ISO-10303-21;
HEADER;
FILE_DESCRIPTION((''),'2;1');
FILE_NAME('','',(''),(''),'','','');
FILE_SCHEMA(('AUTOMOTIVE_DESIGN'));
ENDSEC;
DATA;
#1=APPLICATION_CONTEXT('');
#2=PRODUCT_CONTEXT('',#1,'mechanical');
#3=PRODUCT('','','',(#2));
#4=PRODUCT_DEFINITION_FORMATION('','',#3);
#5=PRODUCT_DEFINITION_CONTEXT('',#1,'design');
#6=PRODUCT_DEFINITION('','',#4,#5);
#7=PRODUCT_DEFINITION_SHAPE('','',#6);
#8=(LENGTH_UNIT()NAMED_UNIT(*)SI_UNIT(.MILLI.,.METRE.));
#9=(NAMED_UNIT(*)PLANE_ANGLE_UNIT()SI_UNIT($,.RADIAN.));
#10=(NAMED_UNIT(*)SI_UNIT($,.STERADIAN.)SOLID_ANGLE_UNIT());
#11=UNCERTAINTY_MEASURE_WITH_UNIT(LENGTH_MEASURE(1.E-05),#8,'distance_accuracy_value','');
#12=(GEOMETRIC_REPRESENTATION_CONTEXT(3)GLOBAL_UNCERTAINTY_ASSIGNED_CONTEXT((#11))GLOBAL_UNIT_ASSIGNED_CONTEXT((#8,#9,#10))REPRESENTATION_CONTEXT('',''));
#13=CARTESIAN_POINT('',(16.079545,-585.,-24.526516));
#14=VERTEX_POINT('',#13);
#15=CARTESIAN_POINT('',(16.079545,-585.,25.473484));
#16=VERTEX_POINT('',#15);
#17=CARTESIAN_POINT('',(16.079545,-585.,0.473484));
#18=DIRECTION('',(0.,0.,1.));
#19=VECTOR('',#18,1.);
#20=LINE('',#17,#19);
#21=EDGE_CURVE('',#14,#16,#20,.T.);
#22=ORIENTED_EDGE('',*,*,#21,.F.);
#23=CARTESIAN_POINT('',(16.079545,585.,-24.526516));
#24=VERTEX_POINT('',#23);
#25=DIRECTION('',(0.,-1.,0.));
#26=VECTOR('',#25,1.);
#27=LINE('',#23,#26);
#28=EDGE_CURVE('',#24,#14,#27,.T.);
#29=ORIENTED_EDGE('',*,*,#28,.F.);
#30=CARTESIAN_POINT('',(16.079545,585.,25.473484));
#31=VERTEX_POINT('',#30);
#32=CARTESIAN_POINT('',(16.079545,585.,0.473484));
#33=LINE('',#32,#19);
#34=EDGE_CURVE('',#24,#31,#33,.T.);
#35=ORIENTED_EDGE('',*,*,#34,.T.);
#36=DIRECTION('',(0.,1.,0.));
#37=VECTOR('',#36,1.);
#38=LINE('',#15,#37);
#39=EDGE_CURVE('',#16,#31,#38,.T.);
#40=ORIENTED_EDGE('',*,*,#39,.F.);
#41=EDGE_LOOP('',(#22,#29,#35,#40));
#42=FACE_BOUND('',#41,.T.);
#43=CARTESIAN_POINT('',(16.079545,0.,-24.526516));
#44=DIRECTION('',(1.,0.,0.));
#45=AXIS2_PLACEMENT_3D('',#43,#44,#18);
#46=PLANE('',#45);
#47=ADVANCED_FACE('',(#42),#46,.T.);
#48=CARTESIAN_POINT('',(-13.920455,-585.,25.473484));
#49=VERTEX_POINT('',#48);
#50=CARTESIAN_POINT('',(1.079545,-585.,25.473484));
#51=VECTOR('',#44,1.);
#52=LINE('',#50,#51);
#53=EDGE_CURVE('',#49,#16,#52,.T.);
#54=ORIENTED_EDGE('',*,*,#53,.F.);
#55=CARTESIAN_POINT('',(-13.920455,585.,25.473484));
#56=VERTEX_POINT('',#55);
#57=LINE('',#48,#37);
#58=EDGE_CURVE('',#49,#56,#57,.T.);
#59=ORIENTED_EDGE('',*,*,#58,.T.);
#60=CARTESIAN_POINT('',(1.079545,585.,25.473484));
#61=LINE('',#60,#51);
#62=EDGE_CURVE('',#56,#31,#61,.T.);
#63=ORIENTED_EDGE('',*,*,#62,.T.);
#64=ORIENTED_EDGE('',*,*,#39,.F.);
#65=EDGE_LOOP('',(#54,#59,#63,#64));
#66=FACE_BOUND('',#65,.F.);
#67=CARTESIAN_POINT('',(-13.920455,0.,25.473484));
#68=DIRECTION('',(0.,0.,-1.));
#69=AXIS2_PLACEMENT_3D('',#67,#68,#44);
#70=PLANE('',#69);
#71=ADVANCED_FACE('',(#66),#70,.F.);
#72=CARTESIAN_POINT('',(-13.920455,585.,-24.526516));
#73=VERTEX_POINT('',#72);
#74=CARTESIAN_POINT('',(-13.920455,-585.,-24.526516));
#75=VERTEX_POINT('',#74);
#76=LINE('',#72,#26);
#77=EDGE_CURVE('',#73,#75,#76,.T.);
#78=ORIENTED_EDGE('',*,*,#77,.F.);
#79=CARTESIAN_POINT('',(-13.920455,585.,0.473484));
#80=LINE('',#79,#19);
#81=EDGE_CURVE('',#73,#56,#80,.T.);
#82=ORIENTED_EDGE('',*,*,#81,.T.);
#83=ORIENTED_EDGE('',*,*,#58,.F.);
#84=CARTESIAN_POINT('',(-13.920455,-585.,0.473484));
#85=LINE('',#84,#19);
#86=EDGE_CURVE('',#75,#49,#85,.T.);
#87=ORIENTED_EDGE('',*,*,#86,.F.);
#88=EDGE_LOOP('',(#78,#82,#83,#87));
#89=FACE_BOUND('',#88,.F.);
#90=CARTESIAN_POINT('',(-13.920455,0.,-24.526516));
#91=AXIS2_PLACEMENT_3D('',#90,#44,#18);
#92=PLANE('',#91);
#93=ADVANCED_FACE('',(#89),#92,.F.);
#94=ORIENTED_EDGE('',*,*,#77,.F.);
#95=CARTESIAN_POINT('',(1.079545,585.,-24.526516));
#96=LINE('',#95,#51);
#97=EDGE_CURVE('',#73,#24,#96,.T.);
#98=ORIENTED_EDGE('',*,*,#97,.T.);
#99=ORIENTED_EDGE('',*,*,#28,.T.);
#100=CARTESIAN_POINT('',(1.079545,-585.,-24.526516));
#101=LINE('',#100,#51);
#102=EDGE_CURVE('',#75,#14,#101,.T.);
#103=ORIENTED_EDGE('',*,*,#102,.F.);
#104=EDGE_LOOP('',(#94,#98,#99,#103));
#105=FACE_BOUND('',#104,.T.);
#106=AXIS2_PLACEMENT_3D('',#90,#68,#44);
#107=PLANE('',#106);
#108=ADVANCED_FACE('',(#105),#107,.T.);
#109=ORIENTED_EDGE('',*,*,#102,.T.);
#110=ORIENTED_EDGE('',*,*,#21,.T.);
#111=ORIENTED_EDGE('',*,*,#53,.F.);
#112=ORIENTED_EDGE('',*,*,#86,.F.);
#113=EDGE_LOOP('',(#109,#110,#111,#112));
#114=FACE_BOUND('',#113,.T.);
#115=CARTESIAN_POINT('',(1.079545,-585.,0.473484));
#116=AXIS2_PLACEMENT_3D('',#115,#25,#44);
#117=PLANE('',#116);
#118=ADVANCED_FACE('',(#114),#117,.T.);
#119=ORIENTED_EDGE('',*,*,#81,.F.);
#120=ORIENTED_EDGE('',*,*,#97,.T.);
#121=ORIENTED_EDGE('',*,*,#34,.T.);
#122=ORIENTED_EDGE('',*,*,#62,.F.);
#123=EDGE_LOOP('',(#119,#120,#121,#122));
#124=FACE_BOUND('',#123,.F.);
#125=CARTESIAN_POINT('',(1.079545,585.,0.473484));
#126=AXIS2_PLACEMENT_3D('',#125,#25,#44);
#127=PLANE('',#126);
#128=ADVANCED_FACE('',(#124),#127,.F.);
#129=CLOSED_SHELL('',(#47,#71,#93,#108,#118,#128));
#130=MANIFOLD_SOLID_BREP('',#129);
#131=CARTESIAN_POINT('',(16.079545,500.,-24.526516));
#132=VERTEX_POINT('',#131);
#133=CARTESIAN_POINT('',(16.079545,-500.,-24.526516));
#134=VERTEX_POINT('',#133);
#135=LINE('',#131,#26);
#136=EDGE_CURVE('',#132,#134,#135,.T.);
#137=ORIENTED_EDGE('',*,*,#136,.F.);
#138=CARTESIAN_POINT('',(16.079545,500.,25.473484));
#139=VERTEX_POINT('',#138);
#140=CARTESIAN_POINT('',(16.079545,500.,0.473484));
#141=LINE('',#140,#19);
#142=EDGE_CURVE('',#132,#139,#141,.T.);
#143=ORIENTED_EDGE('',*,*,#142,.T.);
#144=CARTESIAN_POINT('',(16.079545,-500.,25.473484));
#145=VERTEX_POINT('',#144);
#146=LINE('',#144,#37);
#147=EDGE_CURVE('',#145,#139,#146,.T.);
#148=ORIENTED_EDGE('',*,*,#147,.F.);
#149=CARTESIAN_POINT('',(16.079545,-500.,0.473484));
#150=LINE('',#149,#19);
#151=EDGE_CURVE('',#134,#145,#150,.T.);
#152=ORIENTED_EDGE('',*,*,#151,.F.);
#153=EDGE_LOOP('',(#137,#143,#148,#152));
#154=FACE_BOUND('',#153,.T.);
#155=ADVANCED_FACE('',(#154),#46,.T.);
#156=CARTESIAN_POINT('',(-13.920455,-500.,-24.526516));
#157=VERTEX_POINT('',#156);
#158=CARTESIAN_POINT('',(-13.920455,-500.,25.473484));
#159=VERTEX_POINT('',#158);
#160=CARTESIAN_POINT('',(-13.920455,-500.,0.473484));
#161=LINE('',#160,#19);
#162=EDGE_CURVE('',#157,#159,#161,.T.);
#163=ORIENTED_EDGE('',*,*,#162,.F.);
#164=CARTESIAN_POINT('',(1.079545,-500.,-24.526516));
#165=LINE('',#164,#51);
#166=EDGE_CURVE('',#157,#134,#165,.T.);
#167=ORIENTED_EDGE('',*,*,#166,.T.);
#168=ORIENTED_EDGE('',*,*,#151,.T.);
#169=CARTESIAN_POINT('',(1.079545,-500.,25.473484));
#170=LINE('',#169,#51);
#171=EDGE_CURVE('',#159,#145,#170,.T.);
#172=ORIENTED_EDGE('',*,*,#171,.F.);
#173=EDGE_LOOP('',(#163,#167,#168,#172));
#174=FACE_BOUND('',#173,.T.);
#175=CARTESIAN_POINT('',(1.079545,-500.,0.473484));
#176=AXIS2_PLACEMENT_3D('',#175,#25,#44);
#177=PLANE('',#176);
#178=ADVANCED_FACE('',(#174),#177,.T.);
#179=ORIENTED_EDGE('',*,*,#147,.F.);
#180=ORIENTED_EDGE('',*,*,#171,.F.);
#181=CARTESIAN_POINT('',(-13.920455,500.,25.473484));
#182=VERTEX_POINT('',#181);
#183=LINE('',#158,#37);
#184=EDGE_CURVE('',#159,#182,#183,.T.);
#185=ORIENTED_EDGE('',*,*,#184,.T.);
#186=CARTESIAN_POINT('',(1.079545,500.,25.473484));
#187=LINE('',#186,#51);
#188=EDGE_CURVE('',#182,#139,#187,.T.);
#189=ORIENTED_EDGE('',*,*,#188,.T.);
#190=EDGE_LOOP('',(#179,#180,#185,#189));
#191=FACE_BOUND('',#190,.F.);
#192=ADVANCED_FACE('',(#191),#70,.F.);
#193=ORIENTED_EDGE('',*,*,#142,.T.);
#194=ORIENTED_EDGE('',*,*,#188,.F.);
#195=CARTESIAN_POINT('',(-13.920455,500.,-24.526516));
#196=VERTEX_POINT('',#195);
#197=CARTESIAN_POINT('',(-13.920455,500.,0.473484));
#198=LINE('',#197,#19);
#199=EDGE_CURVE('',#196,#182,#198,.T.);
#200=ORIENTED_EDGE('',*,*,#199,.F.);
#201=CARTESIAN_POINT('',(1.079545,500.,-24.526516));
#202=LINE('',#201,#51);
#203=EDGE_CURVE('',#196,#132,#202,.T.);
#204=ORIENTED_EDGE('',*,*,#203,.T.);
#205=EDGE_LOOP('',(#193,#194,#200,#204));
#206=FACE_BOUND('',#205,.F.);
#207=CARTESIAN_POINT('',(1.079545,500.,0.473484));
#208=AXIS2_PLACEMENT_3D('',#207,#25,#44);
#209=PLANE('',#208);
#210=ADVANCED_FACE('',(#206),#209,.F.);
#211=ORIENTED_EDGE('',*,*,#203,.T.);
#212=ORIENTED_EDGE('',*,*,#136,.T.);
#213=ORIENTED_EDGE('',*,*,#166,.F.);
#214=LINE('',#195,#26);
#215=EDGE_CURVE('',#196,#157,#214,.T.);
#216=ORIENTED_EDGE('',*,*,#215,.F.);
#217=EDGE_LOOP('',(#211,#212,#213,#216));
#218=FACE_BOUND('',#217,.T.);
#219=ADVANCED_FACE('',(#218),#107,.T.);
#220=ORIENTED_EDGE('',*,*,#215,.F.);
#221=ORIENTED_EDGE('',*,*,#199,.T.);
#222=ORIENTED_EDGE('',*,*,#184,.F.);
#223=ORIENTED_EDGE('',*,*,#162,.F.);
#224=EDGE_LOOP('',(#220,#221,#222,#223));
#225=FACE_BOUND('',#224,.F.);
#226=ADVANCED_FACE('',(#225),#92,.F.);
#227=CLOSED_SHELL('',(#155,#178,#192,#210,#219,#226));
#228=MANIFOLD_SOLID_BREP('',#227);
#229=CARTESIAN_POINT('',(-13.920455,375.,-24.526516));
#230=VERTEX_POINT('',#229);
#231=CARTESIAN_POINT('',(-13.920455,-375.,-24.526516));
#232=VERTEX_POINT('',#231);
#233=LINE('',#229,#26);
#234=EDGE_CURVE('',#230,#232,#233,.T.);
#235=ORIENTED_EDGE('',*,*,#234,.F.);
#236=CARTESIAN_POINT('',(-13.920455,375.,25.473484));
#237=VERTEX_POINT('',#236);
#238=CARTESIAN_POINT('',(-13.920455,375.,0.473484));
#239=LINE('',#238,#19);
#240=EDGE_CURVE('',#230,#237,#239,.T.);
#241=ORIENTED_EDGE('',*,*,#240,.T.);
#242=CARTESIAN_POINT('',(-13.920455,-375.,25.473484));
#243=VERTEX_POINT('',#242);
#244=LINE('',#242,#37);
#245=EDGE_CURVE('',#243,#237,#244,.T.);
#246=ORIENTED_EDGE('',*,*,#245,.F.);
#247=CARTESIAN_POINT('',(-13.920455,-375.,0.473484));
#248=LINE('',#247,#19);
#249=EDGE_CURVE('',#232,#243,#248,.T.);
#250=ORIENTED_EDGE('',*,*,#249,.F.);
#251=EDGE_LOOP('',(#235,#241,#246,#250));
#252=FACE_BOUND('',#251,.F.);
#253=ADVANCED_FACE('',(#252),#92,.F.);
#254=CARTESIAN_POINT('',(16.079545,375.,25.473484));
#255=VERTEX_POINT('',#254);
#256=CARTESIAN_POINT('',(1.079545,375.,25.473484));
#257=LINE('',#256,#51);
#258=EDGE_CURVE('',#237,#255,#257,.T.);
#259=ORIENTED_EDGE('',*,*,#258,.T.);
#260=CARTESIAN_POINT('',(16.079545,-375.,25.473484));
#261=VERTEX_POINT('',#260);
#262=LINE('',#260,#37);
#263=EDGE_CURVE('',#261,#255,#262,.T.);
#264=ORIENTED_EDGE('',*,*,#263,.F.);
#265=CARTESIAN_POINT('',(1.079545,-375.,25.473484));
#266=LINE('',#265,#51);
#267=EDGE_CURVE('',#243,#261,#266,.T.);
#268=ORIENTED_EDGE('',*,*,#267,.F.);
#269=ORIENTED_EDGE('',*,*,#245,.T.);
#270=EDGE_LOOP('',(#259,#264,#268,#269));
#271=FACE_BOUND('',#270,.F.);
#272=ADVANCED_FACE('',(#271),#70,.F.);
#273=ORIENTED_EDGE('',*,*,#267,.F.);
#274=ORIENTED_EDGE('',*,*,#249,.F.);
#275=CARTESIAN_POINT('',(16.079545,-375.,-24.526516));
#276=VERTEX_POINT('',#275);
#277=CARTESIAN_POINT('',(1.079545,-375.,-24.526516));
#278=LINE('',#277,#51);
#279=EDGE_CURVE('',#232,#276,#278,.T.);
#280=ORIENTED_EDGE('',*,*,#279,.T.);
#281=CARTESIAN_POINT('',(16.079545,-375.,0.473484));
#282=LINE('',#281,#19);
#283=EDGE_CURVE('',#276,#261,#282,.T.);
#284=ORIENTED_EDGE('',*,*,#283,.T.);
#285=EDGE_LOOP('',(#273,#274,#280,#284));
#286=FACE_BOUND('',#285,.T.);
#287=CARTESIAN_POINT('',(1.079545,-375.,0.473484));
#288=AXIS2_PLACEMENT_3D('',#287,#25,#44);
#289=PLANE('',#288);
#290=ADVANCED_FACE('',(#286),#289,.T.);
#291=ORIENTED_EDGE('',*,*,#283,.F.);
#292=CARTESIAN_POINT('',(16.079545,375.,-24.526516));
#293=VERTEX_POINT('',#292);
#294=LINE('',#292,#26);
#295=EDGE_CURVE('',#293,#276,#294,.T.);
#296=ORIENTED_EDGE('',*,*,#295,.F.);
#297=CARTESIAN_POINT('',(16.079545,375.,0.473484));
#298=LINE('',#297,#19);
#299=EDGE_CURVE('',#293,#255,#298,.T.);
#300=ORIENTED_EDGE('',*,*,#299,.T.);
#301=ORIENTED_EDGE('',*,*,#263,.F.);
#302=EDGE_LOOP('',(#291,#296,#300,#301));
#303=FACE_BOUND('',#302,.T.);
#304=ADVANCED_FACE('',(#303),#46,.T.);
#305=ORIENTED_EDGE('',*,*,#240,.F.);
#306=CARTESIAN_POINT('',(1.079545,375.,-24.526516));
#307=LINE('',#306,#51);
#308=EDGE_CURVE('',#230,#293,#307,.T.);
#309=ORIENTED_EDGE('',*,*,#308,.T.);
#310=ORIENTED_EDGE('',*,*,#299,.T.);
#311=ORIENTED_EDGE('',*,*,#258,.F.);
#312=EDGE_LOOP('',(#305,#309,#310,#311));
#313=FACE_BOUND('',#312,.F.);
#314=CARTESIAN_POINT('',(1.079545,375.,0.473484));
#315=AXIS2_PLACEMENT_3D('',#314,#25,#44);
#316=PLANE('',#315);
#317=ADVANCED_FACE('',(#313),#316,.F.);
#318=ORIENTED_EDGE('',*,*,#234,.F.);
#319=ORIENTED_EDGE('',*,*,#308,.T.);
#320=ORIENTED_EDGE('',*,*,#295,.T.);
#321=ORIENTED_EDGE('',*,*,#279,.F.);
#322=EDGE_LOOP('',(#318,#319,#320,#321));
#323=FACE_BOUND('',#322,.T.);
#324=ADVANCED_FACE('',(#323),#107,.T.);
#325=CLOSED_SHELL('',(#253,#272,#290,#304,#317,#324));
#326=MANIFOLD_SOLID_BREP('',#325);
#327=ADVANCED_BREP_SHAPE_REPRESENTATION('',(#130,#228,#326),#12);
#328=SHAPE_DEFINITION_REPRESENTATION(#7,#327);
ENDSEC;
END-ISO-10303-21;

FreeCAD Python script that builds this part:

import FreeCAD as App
import Part
import Sketcher
from FreeCAD import Vector

doc = App.newDocument("Part")
params = doc.addObject("Spreadsheet::Sheet", "Params")
for row, (alias, value) in enumerate([
    ("sketch1_width", "30 mm"),
    ("sketch1_height", "50 mm"),
    ("pad1_length", "1170 mm"),
    ("sketch2_width", "30 mm"),
    ("sketch2_height", "50 mm"),
    ("pad2_length", "1000 mm"),
    ("sketch3_width", "30 mm"),
    ("sketch3_height", "50 mm"),
    ("pad3_length", "750 mm"),
], start=1):
    params.set(f"A{row}", alias)
    params.set(f"B{row}", "=" + value)
    params.setAlias(f"B{row}", alias)

body = doc.addObject("PartDesign::Body", "Body")

sketch1 = body.newObject("Sketcher::SketchObject", "Sketch")
sketch1.AttachmentSupport = (doc.getObject("XZ_Plane"), [""])
sketch1.MapMode = "FlatFace"
sketch1.addGeometry([
    Part.LineSegment(Vector(-14, 25, 0), Vector(-14, -25, 0)),
    Part.LineSegment(Vector(-14, -25, 0), Vector(16, -25, 0)),
    Part.LineSegment(Vector(16, -25, 0), Vector(16, 25, 0)),
    Part.LineSegment(Vector(16, 25, 0), Vector(-14, 25, 0)),
], False)
sketch1.addConstraint([
    Sketcher.Constraint("Coincident", 0, 2, 1, 1),
    Sketcher.Constraint("Coincident", 1, 2, 2, 1),
    Sketcher.Constraint("Coincident", 2, 2, 3, 1),
    Sketcher.Constraint("Coincident", 3, 2, 0, 1),
    Sketcher.Constraint("Vertical", 0),
    Sketcher.Constraint("Horizontal", 1),
    Sketcher.Constraint("Vertical", 2),
    Sketcher.Constraint("Horizontal", 3),
    Sketcher.Constraint("DistanceX", 1, 1, 1, 2, 30.0),
    Sketcher.Constraint("DistanceY", 0, 2, 0, 1, 50.0),
    Sketcher.Constraint("DistanceX", 0, 2, -1, 1, 13.920455),
    Sketcher.Constraint("DistanceY", 0, 2, -1, 1, 24.526516),
])
sketch1.setExpression("Constraints[8]", "Params.sketch1_width")
sketch1.setExpression("Constraints[9]", "Params.sketch1_height")
pad1 = body.newObject("PartDesign::Pad", "Pad")
pad1.Profile = sketch1
pad1.setExpression("Length", "Params.pad1_length")
pad1.Midplane = True
body2 = doc.addObject("PartDesign::Body", "Body001")

sketch2 = body2.newObject("Sketcher::SketchObject", "Sketch001")
sketch2.AttachmentSupport = (doc.getObject("XZ_Plane001"), [""])
sketch2.MapMode = "FlatFace"
sketch2.addGeometry([
    Part.LineSegment(Vector(-14, 25, 0), Vector(-14, -25, 0)),
    Part.LineSegment(Vector(-14, -25, 0), Vector(16, -25, 0)),
    Part.LineSegment(Vector(16, -25, 0), Vector(16, 25, 0)),
    Part.LineSegment(Vector(16, 25, 0), Vector(-14, 25, 0)),
], False)
sketch2.addConstraint([
    Sketcher.Constraint("Coincident", 0, 2, 1, 1),
    Sketcher.Constraint("Coincident", 1, 2, 2, 1),
    Sketcher.Constraint("Coincident", 2, 2, 3, 1),
    Sketcher.Constraint("Coincident", 3, 2, 0, 1),
    Sketcher.Constraint("Vertical", 0),
    Sketcher.Constraint("Horizontal", 1),
    Sketcher.Constraint("Vertical", 2),
    Sketcher.Constraint("Horizontal", 3),
    Sketcher.Constraint("DistanceX", 1, 1, 1, 2, 30.0),
    Sketcher.Constraint("DistanceY", 0, 2, 0, 1, 50.0),
    Sketcher.Constraint("DistanceX", 0, 2, -1, 1, 13.920455),
    Sketcher.Constraint("DistanceY", 0, 2, -1, 1, 24.526516),
])
sketch2.setExpression("Constraints[8]", "Params.sketch2_width")
sketch2.setExpression("Constraints[9]", "Params.sketch2_height")
pad2 = body2.newObject("PartDesign::Pad", "Pad001")
pad2.Profile = sketch2
pad2.setExpression("Length", "Params.pad2_length")
pad2.Midplane = True
body3 = doc.addObject("PartDesign::Body", "Body002")

sketch3 = body3.newObject("Sketcher::SketchObject", "Sketch002")
sketch3.AttachmentSupport = (doc.getObject("XZ_Plane002"), [""])
sketch3.MapMode = "FlatFace"
sketch3.addGeometry([
    Part.LineSegment(Vector(-14, 25, 0), Vector(-14, -25, 0)),
    Part.LineSegment(Vector(-14, -25, 0), Vector(16, -25, 0)),
    Part.LineSegment(Vector(16, -25, 0), Vector(16, 25, 0)),
    Part.LineSegment(Vector(16, 25, 0), Vector(-14, 25, 0)),
], False)
sketch3.addConstraint([
    Sketcher.Constraint("Coincident", 0, 2, 1, 1),
    Sketcher.Constraint("Coincident", 1, 2, 2, 1),
    Sketcher.Constraint("Coincident", 2, 2, 3, 1),
    Sketcher.Constraint("Coincident", 3, 2, 0, 1),
    Sketcher.Constraint("Vertical", 0),
    Sketcher.Constraint("Horizontal", 1),
    Sketcher.Constraint("Vertical", 2),
    Sketcher.Constraint("Horizontal", 3),
    Sketcher.Constraint("DistanceX", 1, 1, 1, 2, 30.0),
    Sketcher.Constraint("DistanceY", 0, 2, 0, 1, 50.0),
    Sketcher.Constraint("DistanceX", 0, 2, -1, 1, 13.920455),
    Sketcher.Constraint("DistanceY", 0, 2, -1, 1, 24.526516),
])
sketch3.setExpression("Constraints[8]", "Params.sketch3_width")
sketch3.setExpression("Constraints[9]", "Params.sketch3_height")
pad3 = body3.newObject("PartDesign::Pad", "Pad002")
pad3.Profile = sketch3
pad3.setExpression("Length", "Params.pad3_length")
pad3.Midplane = True

doc.recompute()
